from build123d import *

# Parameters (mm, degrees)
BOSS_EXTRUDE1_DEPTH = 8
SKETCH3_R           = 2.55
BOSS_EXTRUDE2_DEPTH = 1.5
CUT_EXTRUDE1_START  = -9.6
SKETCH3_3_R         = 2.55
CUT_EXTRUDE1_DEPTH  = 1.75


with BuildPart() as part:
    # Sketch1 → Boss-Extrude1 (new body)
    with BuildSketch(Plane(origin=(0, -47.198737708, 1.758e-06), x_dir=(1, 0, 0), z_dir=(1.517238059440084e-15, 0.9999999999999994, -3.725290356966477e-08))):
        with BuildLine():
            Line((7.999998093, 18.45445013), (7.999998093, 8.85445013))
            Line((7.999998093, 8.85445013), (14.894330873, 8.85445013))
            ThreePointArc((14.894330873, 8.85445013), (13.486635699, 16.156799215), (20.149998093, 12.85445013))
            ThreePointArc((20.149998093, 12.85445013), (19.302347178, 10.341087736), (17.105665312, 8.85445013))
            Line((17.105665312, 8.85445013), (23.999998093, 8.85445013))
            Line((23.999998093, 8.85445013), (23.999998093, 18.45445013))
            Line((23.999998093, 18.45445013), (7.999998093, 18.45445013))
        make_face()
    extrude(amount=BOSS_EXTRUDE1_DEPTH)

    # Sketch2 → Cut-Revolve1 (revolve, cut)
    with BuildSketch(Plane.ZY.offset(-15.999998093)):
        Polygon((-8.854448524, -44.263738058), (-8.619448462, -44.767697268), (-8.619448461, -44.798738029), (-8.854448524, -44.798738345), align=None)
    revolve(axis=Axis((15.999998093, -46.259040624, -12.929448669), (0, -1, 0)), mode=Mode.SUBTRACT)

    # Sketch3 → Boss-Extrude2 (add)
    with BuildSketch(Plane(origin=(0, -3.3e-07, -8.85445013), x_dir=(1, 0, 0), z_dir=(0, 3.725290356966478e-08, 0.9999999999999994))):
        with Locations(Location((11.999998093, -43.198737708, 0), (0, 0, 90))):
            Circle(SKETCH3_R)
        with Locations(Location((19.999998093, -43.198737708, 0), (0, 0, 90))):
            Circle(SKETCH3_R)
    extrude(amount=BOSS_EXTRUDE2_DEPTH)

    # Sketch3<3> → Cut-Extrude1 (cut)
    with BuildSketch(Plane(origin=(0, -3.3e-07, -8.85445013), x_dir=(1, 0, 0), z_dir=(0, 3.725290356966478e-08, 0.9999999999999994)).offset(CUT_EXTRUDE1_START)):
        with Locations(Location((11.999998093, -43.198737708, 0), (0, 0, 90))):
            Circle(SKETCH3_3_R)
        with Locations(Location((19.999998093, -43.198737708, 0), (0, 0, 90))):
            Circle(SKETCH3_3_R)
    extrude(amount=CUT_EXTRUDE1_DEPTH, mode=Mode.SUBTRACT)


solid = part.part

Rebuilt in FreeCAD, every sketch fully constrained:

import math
import FreeCAD as App
import Part
import Sketcher
Q = App.Units.Quantity

doc = App.newDocument("Part")
body = doc.addObject("PartDesign::Body", "Body")

# Sketch on XZ plane
sketch1 = doc.addObject("Sketcher::SketchObject", "Sketch")
body.addObject(sketch1)
sketch1.AttachmentSupport = (doc.XZ_Plane, [""])
sketch1.MapMode = "FlatFace"
sketch1.AttachmentOffset = App.Placement(App.Vector(0, 0, 47.198738), App.Rotation())
sketch1.addGeometry([
    Part.LineSegment(App.Vector(7.999998, -18.454448, 0), App.Vector(7.999998, -8.854448, 0)),  # 0
    Part.LineSegment(App.Vector(7.999998, -8.854448, 0), App.Vector(14.894331, -8.854448, 0)),  # 1
    Part.ArcOfCircle(Part.Circle(App.Vector(15.999998, -12.854448, 0), App.Vector(0, 0, 1), 4.15), math.radians(105.451693), math.radians(360)),  # 2
    Part.ArcOfCircle(Part.Circle(App.Vector(15.999998, -12.854448, 0), App.Vector(0, 0, 1), 4.15), math.radians(0), math.radians(74.548307)),  # 3
    Part.LineSegment(App.Vector(17.105665, -8.854448, 0), App.Vector(23.999998, -8.854448, 0)),  # 4
    Part.LineSegment(App.Vector(23.999998, -8.854448, 0), App.Vector(23.999998, -18.454448, 0)),  # 5
    Part.LineSegment(App.Vector(23.999998, -18.454448, 0), App.Vector(7.999998, -18.454448, 0)),  # 6
], False)
sketch1.addConstraint([
    Sketcher.Constraint("Coincident", 0, 2, 1, 1),
    Sketcher.Constraint("Coincident", 1, 2, 2, 1),
    Sketcher.Constraint("Tangent", 2, 2, 3, 1),
    Sketcher.Constraint("Coincident", 3, 2, 4, 1),
    Sketcher.Constraint("Coincident", 4, 2, 5, 1),
    Sketcher.Constraint("Coincident", 5, 2, 6, 1),
    Sketcher.Constraint("Coincident", 6, 2, 0, 1),
    Sketcher.Constraint("Vertical", 0),
    Sketcher.Constraint("Horizontal", 1),
    Sketcher.Constraint("Horizontal", 4),
    Sketcher.Constraint("Vertical", 5),
    Sketcher.Constraint("Horizontal", 6),
    Sketcher.Constraint("Equal", 2, 3),
    Sketcher.Constraint("Horizontal", 3, 3, 2, 2),
    Sketcher.Constraint("Horizontal", 1, 2, 3, 2),
    Sketcher.Constraint("Equal", 1, 4),
    Sketcher.Constraint("DistanceX", 6, 2, 6, 1, 16.0),
    Sketcher.Constraint("Radius", 2, 4.15),
    Sketcher.Constraint("DistanceY", 0, 1, 0, 2, 9.6),
    Sketcher.Constraint("DistanceX", -1, 1, 2, 3, 15.999998),
    Sketcher.Constraint("DistanceY", 2, 3, 0, 2, 4.0),
    Sketcher.Constraint("DistanceY", 2, 3, -1, 1, 12.854448),
])
pad1 = doc.addObject("PartDesign::Pad", "Pad")
body.addObject(pad1)
pad1.Profile = sketch1
pad1.Length = 8
pad1.Reversed = True

# Sketch on YZ plane
sketch2 = doc.addObject("Sketcher::SketchObject", "Sketch001")
body.addObject(sketch2)
sketch2.AttachmentSupport = (doc.YZ_Plane, [""])
sketch2.MapMode = "FlatFace"
sketch2.AttachmentOffset = App.Placement(App.Vector(0, 0, 15.999998), App.Rotation())
sketch2.addGeometry([
    Part.LineSegment(App.Vector(-44.767697, -8.619448, 0), App.Vector(-44.263738, -8.854449, 0)),
    Part.LineSegment(App.Vector(-44.263738, -8.854449, 0), App.Vector(-44.798738, -8.854449, 0)),
    Part.LineSegment(App.Vector(-44.798738, -8.854449, 0), App.Vector(-44.798738, -8.619448, 0)),
    Part.LineSegment(App.Vector(-44.798738, -8.619448, 0), App.Vector(-44.767697, -8.619448, 0)),
], False)
sketch2.addGeometry(Part.LineSegment(App.Vector(-44.263738, -12.929449, 0), App.Vector(-44.798738, -12.929449, 0)), True)  # axis
sketch2.addConstraint([
    Sketcher.Constraint("Coincident", 0, 2, 1, 1),
    Sketcher.Constraint("Coincident", 1, 2, 2, 1),
    Sketcher.Constraint("Coincident", 2, 2, 3, 1),
    Sketcher.Constraint("Coincident", 3, 2, 0, 1),
    Sketcher.Constraint("Horizontal", 1),
    Sketcher.Constraint("Vertical", 2),
    Sketcher.Constraint("Horizontal", 3),
    Sketcher.Constraint("Horizontal", 4),
    Sketcher.Constraint("Vertical", 0, 2, 4, 1),
    Sketcher.Constraint("Vertical", 2, 2, 4, 2),
    Sketcher.Constraint("Angle", 0, Q("-25.000002 deg")),
    Sketcher.Constraint("DistanceX", 1, 2, 1, 1, 0.535),
    Sketcher.Constraint("DistanceY", 2, 1, 2, 2, 0.235),
    Sketcher.Constraint("DistanceY", 4, 1, 3, 2, 4.31),
    Sketcher.Constraint("DistanceX", 0, 2, -1, 1, 44.263738),
    Sketcher.Constraint("DistanceY", 0, 2, -1, 1, 8.854449),
])
groove = doc.addObject("PartDesign::Groove", "Groove")
body.addObject(groove)
groove.Profile = sketch2
groove.ReferenceAxis = (sketch2, ["Axis0"])
groove.Angle = 360

# Sketch on XY plane
sketch3 = doc.addObject("Sketcher::SketchObject", "Sketch002")
body.addObject(sketch3)
sketch3.AttachmentSupport = (doc.XY_Plane, [""])
sketch3.MapMode = "FlatFace"
sketch3.AttachmentOffset = App.Placement(App.Vector(0, 0, -8.85445), App.Rotation())
sketch3.addGeometry([
    Part.Circle(App.Vector(11.999998, -43.198738, 0), App.Vector(0, 0, 1), 2.55),
    Part.Circle(App.Vector(19.999998, -43.198738, 0), App.Vector(0, 0, 1), 2.55),
], False)
sketch3.addConstraint([
    Sketcher.Constraint("Equal", 0, 1),
    Sketcher.Constraint("Horizontal", 0, 3, 1, 3),
    Sketcher.Constraint("Diameter", 0, 5.1),
    Sketcher.Constraint("DistanceX", -1, 1, 0, 3, 11.999998),
    Sketcher.Constraint("DistanceX", -1, 1, 1, 3, 19.999998),
    Sketcher.Constraint("DistanceY", 0, 3, -1, 1, 43.198738),
])
pad2 = doc.addObject("PartDesign::Pad", "Pad001")
body.addObject(pad2)
pad2.Profile = sketch3
pad2.Length = 1.5

# Sketch on XY plane
sketch4 = doc.addObject("Sketcher::SketchObject", "Sketch003")
body.addObject(sketch4)
sketch4.AttachmentSupport = (doc.XY_Plane, [""])
sketch4.MapMode = "FlatFace"
sketch4.AttachmentOffset = App.Placement(App.Vector(0, 0, -18.45445), App.Rotation())
sketch4.addGeometry([
    Part.Circle(App.Vector(11.999998, -43.198738, 0), App.Vector(0, 0, 1), 2.55),
    Part.Circle(App.Vector(19.999998, -43.198738, 0), App.Vector(0, 0, 1), 2.55),
], False)
sketch4.addConstraint([
    Sketcher.Constraint("Equal", 0, 1),
    Sketcher.Constraint("Horizontal", 0, 3, 1, 3),
    Sketcher.Constraint("Diameter", 0, 5.1),
    Sketcher.Constraint("DistanceX", -1, 1, 0, 3, 11.999998),
    Sketcher.Constraint("DistanceX", -1, 1, 1, 3, 19.999998),
    Sketcher.Constraint("DistanceY", 0, 3, -1, 1, 43.198738),
])
pocket1 = doc.addObject("PartDesign::Pocket", "Pocket")
body.addObject(pocket1)
pocket1.Profile = sketch4
pocket1.Length = 1.75
pocket1.Reversed = True

doc.recompute()
